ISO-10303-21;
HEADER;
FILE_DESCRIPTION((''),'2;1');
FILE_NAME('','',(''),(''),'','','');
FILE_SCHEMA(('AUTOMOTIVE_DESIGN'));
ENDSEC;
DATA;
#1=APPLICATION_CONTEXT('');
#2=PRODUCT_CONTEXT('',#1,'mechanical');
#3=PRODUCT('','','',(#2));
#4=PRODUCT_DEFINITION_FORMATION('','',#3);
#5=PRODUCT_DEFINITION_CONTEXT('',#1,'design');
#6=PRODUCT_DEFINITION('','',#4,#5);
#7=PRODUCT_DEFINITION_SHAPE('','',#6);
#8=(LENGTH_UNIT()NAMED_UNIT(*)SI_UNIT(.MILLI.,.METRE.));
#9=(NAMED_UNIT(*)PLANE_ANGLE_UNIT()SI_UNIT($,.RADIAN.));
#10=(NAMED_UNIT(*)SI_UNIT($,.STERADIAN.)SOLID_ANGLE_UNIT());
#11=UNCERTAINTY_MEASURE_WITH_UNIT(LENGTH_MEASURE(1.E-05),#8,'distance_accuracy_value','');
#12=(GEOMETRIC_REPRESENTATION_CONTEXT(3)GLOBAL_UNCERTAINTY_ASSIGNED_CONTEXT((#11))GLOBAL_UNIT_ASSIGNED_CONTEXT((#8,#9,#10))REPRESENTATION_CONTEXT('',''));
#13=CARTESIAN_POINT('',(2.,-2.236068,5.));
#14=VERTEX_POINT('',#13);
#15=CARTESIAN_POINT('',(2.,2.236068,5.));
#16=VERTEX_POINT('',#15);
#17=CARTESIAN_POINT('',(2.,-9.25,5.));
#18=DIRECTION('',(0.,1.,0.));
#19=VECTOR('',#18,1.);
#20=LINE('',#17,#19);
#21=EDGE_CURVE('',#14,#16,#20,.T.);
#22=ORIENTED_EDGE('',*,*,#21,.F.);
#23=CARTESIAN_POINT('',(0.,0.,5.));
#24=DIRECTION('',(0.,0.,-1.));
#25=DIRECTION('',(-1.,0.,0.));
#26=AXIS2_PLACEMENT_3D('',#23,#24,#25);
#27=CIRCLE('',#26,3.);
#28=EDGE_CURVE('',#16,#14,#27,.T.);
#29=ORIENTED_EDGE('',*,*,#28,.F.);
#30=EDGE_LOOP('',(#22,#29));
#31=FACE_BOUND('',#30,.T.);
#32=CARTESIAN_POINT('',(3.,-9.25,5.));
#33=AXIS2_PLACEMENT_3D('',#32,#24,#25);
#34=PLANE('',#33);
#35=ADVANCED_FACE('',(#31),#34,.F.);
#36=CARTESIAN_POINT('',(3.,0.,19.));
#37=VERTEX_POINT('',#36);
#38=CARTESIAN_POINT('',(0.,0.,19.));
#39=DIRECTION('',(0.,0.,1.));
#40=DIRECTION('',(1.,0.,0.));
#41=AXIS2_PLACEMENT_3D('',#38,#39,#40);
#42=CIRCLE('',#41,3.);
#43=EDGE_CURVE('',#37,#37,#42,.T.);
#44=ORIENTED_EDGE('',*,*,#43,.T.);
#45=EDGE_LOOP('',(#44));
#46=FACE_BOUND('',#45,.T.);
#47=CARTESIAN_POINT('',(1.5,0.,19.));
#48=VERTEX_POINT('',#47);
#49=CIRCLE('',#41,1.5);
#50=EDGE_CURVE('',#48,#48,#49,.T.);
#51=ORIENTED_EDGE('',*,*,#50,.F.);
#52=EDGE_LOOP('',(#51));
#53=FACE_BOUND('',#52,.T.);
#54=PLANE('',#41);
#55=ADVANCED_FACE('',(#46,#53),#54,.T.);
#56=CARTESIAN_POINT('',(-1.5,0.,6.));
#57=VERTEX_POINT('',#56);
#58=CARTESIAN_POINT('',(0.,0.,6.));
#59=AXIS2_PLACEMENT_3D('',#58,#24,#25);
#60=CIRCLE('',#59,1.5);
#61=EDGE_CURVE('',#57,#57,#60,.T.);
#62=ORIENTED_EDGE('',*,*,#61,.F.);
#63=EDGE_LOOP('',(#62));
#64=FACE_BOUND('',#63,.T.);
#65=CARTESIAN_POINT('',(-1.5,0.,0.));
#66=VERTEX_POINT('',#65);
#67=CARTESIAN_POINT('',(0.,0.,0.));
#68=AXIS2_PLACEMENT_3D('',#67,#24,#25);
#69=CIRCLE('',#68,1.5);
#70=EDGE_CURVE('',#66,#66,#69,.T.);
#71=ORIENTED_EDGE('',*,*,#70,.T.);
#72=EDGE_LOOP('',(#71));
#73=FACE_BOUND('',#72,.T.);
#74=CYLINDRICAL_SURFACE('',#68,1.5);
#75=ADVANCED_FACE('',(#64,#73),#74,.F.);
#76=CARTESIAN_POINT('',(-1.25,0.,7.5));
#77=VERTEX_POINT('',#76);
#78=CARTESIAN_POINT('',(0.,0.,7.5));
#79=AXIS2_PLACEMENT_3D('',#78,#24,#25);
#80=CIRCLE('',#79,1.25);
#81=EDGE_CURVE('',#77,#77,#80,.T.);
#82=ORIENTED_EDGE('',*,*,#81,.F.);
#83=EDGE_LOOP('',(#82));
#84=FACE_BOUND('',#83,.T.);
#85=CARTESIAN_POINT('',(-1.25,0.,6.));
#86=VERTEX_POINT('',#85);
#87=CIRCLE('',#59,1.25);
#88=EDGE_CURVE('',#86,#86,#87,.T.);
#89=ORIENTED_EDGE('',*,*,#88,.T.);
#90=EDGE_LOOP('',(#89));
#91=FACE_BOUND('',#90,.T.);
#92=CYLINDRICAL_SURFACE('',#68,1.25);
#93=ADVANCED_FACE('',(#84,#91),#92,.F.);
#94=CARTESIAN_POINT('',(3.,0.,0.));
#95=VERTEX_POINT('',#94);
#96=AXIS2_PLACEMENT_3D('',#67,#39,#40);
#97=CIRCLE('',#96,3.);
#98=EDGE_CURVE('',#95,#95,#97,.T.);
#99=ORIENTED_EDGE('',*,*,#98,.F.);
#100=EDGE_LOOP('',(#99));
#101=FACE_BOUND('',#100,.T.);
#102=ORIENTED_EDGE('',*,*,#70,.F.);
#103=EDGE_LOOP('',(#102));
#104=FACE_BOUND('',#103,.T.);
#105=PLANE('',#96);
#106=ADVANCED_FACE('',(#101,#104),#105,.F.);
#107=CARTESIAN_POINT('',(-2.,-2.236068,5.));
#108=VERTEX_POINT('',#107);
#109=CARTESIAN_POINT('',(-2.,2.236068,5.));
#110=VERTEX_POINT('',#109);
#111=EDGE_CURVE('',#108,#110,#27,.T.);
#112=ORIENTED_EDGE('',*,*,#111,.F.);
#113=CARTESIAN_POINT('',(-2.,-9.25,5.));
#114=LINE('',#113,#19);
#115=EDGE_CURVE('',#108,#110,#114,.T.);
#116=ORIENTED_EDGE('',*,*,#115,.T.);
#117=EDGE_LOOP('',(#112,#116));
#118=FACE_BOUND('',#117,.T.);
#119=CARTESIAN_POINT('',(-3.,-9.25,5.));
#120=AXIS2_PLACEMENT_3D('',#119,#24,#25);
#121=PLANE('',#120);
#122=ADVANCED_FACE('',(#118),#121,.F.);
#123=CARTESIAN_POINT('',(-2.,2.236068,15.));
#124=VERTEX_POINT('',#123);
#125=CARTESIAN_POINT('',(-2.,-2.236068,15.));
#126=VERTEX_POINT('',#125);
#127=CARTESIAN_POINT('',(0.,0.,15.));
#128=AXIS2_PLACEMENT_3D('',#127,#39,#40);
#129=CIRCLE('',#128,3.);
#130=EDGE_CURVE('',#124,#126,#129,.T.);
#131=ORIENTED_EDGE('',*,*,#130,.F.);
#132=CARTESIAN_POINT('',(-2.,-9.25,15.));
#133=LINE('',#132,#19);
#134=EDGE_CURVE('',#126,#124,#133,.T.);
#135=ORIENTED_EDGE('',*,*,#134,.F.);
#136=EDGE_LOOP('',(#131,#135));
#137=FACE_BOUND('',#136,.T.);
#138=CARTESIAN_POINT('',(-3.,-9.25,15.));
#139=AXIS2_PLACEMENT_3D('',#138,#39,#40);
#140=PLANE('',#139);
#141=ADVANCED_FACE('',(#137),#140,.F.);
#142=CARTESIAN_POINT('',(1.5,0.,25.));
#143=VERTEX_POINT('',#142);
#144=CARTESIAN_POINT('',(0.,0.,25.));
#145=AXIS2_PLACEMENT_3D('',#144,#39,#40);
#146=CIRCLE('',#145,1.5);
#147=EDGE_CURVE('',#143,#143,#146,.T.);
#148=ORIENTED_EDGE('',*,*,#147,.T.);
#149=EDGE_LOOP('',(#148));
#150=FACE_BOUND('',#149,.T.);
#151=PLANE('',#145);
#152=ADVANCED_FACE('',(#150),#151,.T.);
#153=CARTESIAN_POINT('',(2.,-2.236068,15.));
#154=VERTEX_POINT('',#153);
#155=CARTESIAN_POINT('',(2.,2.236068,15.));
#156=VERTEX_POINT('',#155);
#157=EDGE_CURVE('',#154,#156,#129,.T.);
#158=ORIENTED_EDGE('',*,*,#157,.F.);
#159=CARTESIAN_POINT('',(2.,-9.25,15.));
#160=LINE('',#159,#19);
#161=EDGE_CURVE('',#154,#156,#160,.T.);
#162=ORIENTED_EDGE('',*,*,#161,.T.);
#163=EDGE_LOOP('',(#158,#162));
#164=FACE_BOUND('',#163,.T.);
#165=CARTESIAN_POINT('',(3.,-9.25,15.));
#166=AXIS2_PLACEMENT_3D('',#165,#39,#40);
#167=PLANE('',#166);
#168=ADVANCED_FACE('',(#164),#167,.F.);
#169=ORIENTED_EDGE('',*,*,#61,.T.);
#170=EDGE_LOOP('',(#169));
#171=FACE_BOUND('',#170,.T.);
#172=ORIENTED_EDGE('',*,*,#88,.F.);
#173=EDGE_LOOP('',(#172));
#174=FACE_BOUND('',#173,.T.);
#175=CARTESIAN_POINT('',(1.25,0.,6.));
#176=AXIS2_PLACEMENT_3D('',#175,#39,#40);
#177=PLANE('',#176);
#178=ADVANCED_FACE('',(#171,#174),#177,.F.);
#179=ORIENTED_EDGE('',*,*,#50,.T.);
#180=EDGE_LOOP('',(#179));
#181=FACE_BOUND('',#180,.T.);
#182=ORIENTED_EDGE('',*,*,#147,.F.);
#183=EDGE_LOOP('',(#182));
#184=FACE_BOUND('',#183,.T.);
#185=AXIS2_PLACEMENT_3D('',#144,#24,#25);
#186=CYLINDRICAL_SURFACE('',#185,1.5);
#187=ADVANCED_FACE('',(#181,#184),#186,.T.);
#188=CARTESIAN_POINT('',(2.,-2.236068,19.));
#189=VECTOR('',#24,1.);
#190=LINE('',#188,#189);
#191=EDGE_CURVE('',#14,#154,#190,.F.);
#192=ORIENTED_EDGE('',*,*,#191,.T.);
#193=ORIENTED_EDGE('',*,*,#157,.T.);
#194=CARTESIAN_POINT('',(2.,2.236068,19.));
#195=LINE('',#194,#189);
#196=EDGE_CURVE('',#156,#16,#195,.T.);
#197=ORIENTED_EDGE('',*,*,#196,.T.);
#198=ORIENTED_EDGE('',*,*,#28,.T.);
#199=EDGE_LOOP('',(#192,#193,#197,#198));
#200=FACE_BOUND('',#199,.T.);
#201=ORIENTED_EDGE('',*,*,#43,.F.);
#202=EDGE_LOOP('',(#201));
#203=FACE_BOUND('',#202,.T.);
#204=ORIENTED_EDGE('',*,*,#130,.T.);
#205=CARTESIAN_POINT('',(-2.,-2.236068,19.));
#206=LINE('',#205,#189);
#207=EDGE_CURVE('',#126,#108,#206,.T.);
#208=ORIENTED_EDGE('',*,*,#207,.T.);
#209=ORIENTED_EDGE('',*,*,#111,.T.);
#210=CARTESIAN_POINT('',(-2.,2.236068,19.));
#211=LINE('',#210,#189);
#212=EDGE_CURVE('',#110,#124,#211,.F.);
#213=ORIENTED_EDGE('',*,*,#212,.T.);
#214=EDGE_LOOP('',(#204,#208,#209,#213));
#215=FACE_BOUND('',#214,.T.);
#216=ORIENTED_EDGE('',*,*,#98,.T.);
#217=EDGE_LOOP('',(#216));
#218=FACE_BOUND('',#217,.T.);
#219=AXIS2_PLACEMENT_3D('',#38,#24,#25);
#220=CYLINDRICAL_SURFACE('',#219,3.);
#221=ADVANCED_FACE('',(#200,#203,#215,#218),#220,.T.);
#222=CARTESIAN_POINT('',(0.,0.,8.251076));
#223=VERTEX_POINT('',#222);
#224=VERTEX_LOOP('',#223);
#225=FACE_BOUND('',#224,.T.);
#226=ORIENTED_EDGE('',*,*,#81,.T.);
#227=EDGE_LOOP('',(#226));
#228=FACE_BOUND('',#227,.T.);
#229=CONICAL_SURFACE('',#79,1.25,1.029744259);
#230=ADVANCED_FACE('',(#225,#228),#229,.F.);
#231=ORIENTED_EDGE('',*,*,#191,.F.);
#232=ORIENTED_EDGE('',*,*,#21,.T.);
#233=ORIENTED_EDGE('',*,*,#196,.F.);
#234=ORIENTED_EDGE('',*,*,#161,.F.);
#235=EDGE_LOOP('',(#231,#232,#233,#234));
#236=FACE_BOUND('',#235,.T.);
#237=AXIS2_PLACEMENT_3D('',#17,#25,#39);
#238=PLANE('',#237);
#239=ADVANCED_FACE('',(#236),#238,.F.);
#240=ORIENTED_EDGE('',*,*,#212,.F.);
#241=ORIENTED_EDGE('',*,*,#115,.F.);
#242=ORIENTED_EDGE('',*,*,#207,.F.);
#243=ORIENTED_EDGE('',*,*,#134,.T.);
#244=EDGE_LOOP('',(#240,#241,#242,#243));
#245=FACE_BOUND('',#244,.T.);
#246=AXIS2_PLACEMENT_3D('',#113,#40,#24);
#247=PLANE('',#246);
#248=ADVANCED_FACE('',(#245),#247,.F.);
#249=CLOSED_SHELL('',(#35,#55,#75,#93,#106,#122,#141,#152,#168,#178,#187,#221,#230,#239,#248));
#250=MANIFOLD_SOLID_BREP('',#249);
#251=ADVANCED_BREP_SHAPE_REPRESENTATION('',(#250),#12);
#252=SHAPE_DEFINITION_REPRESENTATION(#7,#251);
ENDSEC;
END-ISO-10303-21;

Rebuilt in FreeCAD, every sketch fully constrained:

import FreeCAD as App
import Part
import Sketcher

V = App.Vector
Q = App.Units.Quantity

doc = App.newDocument("Part")
params = doc.addObject("Spreadsheet::Sheet", "Params")
for row, (alias, value) in enumerate([
    ("sketch1_diameter", "6 mm"),
    ("pad1_length", "19 mm"),
    ("sketch2_width", "1 mm"),
    ("sketch2_height", "10 mm"),
    ("pocket1_length", "18.5 mm"),
    ("sketch3_diameter", "2.5 mm"),
    ("hole_diameter", "2.5 mm"),
    ("hole_depth", "7.5 mm"),
    ("hole_cbore_diameter", "3 mm"),
    ("hole_cbore_depth", "6 mm"),
    ("sketch4_diameter", "3 mm"),
    ("pad2_length", "6 mm"),
], start=1):
    params.set(f"A{row}", alias)
    params.set(f"B{row}", "=" + value)
    params.setAlias(f"B{row}", alias)

body = doc.addObject("PartDesign::Body", "Body")

# Sketch on XY plane
sketch1 = body.newObject("Sketcher::SketchObject", "Sketch")
sketch1.AttachmentSupport = (doc.getObject("XY_Plane"), [""])
sketch1.MapMode = "FlatFace"
sketch1.addGeometry(Part.Circle(V(0, 0, 0), V(0, 0, 1), 3), False)
sketch1.addConstraint(Sketcher.Constraint("Coincident", 0, 3, -1, 1))
sketch1.addConstraint(Sketcher.Constraint("Diameter", 0, Q("6 mm")))
sketch1.setExpression("Constraints[1]", "Params.sketch1_diameter")
pad1 = body.newObject("PartDesign::Pad", "Pad")
pad1.Profile = sketch1
pad1.setExpression("Length", "Params.pad1_length")

# Sketch on XZ plane
sketch2 = body.newObject("Sketcher::SketchObject", "Sketch001")
sketch2.AttachmentSupport = (doc.getObject("XZ_Plane"), [""])
sketch2.MapMode = "FlatFace"
sketch2.addGeometry(Part.LineSegment(V(-3, 5, 0), V(-3, 15, 0)), False)
sketch2.addGeometry(Part.LineSegment(V(-3, 15, 0), V(-2, 15, 0)), False)
sketch2.addGeometry(Part.LineSegment(V(-2, 15, 0), V(-2, 5, 0)), False)
sketch2.addGeometry(Part.LineSegment(V(-2, 5, 0), V(-3, 5, 0)), False)
sketch2.addGeometry(Part.LineSegment(V(2, 5, 0), V(2, 15, 0)), False)
sketch2.addGeometry(Part.LineSegment(V(2, 15, 0), V(3, 15, 0)), False)
sketch2.addGeometry(Part.LineSegment(V(3, 15, 0), V(3, 5, 0)), False)
sketch2.addGeometry(Part.LineSegment(V(3, 5, 0), V(2, 5, 0)), False)
sketch2.addConstraint(Sketcher.Constraint("Coincident", 0, 2, 1, 1))
sketch2.addConstraint(Sketcher.Constraint("Coincident", 1, 2, 2, 1))
sketch2.addConstraint(Sketcher.Constraint("Coincident", 2, 2, 3, 1))
sketch2.addConstraint(Sketcher.Constraint("Coincident", 3, 2, 0, 1))
sketch2.addConstraint(Sketcher.Constraint("Coincident", 4, 2, 5, 1))
sketch2.addConstraint(Sketcher.Constraint("Coincident", 5, 2, 6, 1))
sketch2.addConstraint(Sketcher.Constraint("Coincident", 6, 2, 7, 1))
sketch2.addConstraint(Sketcher.Constraint("Coincident", 7, 2, 4, 1))
sketch2.addConstraint(Sketcher.Constraint("Vertical", 0))
sketch2.addConstraint(Sketcher.Constraint("Horizontal", 1))
sketch2.addConstraint(Sketcher.Constraint("Vertical", 2))
sketch2.addConstraint(Sketcher.Constraint("Horizontal", 3))
sketch2.addConstraint(Sketcher.Constraint("Vertical", 4))
sketch2.addConstraint(Sketcher.Constraint("Horizontal", 5))
sketch2.addConstraint(Sketcher.Constraint("Vertical", 6))
sketch2.addConstraint(Sketcher.Constraint("Horizontal", 7))
sketch2.addConstraint(Sketcher.Constraint("Symmetric", 1, 2, 4, 2, -2))
sketch2.addConstraint(Sketcher.Constraint("Symmetric", 3, 2, 6, 2, -2))
sketch2.addConstraint(Sketcher.Constraint("DistanceX", 1, 1, 1, 2, Q("1 mm")))
sketch2.addConstraint(Sketcher.Constraint("DistanceY", 0, 1, 0, 2, Q("10 mm")))
sketch2.addConstraint(Sketcher.Constraint("DistanceX", 0, 2, -1, 1, Q("3 mm")))
sketch2.addConstraint(Sketcher.Constraint("DistanceY", -1, 1, 0, 2, Q("15 mm")))
sketch2.setExpression("Constraints[18]", "Params.sketch2_width")
sketch2.setExpression("Constraints[19]", "Params.sketch2_height")
pocket1 = body.newObject("PartDesign::Pocket", "Pocket")
pocket1.Profile = sketch2
pocket1.setExpression("Length", "Params.pocket1_length")
pocket1.Midplane = True

# Sketch on XY plane
sketch3 = body.newObject("Sketcher::SketchObject", "Sketch002")
sketch3.AttachmentSupport = (doc.getObject("XY_Plane"), [""])
sketch3.MapMode = "FlatFace"
sketch3.addGeometry(Part.Circle(V(0, 0, 0), V(0, 0, 1), 1.25), False)
sketch3.addConstraint(Sketcher.Constraint("Coincident", 0, 3, -1, 1))
sketch3.addConstraint(Sketcher.Constraint("Diameter", 0, Q("2.5 mm")))
sketch3.setExpression("Constraints[1]", "Params.sketch3_diameter")
doc.recompute()
hole = body.newObject("PartDesign::Hole", "Hole")
hole.Profile = sketch3
hole.ThreadType = "None"
hole.setExpression("Diameter", "Params.hole_diameter")
hole.DepthType = "Dimension"
hole.setExpression("Depth", "Params.hole_depth")
hole.DrillPoint = "Angled"
hole.DrillPointAngle = 118
hole.HoleCutType = "Counterbore"
hole.setExpression("HoleCutDiameter", "Params.hole_cbore_diameter")
hole.setExpression("HoleCutDepth", "Params.hole_cbore_depth")
hole.Reversed = True

# Sketch on XY plane
sketch4 = body.newObject("Sketcher::SketchObject", "Sketch003")
sketch4.AttachmentSupport = (doc.getObject("XY_Plane"), [""])
sketch4.MapMode = "FlatFace"
sketch4.AttachmentOffset = App.Placement(V(0, 0, 19), App.Rotation())
sketch4.addGeometry(Part.Circle(V(0, 0, 0), V(0, 0, 1), 1.5), False)
sketch4.addConstraint(Sketcher.Constraint("Coincident", 0, 3, -1, 1))
sketch4.addConstraint(Sketcher.Constraint("Diameter", 0, Q("3 mm")))
sketch4.setExpression("Constraints[1]", "Params.sketch4_diameter")
pad2 = body.newObject("PartDesign::Pad", "Pad001")
pad2.Profile = sketch4
pad2.setExpression("Length", "Params.pad2_length")

doc.recompute()
